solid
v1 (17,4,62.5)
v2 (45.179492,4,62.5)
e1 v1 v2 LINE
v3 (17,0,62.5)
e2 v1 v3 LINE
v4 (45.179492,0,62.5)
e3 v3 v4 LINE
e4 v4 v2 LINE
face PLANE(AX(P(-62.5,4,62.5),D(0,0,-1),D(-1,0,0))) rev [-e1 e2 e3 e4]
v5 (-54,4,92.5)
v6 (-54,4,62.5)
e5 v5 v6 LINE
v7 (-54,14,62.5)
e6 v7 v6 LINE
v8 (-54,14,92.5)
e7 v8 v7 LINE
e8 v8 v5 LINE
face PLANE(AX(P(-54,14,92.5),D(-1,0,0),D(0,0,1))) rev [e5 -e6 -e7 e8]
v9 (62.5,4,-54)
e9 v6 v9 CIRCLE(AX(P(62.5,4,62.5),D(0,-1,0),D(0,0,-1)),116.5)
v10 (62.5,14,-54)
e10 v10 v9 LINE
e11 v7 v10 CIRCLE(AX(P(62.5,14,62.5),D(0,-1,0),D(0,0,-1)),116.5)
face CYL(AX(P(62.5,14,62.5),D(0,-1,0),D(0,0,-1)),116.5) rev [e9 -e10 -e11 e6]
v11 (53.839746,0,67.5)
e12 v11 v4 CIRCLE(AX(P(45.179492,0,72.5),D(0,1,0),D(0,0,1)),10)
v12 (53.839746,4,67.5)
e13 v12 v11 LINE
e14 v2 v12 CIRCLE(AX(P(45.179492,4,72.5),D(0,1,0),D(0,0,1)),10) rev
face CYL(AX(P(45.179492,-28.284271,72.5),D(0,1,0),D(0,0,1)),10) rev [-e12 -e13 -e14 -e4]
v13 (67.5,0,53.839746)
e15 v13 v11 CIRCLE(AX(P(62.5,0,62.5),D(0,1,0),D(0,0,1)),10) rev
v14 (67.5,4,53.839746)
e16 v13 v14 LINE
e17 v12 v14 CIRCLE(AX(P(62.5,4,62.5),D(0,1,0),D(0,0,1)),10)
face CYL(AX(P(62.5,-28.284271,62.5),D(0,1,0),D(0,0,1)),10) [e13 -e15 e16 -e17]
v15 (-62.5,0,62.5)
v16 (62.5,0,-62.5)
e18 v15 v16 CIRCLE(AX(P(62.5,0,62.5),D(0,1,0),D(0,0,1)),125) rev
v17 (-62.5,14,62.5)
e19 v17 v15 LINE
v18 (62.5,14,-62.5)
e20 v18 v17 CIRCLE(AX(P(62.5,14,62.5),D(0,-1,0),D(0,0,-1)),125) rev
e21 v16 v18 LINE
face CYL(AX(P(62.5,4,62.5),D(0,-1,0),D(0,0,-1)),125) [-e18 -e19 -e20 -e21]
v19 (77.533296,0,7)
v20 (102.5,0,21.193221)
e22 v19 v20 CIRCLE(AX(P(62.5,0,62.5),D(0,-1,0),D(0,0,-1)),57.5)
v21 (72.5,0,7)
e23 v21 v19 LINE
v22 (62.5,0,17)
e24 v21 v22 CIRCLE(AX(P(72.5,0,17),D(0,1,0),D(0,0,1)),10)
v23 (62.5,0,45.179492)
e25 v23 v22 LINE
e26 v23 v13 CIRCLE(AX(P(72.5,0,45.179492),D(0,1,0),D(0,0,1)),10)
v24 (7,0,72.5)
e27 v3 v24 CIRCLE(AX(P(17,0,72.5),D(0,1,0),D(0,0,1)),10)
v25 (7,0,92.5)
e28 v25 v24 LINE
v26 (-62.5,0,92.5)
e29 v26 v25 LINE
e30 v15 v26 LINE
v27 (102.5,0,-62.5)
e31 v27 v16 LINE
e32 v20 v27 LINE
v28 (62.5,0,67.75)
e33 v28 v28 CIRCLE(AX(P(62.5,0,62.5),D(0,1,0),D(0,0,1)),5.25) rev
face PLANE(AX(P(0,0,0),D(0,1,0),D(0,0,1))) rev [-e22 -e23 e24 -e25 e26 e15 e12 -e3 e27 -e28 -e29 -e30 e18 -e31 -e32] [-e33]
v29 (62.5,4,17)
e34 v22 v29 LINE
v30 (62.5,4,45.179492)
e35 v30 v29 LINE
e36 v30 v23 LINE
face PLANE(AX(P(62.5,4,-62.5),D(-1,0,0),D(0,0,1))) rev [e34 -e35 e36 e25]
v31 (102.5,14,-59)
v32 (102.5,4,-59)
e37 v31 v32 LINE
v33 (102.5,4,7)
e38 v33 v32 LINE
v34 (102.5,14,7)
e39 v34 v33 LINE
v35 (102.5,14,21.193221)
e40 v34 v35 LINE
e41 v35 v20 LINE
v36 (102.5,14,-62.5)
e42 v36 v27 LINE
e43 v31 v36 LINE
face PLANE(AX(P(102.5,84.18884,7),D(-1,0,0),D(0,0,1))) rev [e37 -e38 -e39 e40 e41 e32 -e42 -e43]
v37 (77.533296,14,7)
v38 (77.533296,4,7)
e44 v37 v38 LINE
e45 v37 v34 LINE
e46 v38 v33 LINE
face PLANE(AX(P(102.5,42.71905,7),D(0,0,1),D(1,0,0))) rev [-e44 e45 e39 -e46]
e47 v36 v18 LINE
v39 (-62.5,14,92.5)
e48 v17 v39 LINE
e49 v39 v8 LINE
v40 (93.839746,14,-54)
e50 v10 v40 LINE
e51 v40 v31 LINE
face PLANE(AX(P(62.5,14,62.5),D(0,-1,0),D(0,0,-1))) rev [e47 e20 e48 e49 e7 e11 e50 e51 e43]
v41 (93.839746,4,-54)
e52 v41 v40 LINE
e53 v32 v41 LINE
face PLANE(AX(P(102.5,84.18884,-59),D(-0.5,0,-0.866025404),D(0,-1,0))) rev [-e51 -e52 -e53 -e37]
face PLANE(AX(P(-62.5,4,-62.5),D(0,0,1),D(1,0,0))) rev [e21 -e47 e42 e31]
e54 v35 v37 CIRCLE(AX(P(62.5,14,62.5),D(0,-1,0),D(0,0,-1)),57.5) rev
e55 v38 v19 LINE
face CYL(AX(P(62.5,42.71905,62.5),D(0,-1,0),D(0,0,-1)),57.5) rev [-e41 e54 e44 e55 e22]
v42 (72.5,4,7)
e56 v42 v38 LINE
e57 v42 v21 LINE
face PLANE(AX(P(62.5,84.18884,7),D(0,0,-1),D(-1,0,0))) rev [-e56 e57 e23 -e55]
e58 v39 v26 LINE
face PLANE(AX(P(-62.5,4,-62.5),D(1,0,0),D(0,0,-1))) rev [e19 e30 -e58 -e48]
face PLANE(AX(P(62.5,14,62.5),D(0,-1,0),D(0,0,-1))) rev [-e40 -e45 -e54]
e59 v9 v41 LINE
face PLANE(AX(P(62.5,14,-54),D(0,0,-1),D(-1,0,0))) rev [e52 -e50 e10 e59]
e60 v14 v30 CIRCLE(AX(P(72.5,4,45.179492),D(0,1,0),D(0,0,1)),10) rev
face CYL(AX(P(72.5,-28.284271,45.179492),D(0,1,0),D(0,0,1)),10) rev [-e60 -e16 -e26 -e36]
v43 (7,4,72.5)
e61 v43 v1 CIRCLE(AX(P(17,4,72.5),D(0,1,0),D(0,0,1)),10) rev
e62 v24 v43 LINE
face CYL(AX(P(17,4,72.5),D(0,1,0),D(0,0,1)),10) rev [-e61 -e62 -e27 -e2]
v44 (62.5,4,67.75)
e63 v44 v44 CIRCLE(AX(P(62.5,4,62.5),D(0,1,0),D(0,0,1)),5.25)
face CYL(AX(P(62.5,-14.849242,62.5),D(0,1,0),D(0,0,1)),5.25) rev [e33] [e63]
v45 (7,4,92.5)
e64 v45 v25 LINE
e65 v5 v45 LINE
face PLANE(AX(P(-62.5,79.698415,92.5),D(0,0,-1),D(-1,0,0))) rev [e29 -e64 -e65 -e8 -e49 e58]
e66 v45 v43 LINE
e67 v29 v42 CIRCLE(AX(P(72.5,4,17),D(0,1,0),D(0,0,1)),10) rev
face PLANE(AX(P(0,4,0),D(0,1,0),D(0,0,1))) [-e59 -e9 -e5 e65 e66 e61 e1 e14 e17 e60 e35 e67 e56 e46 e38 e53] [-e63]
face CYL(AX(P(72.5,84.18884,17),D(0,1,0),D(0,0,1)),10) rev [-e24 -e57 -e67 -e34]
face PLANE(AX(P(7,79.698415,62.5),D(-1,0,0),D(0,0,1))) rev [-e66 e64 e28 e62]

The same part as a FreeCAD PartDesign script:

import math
import FreeCAD as App
import Part
import Sketcher
from FreeCAD import Vector
Q = App.Units.Quantity


def edges_at(feature, points):
    """Names of the edges that pass closest to the given points."""
    edges = feature.Shape.Edges
    near = lambda p: min(range(len(edges)), key=lambda i: edges[i].distToShape(Part.Vertex(*p))[0])
    return sorted({f"Edge{near(p) + 1}" for p in points})


def add_polygon(sketch, points):
    """Adds a closed chain of lines whose ends are joined by coincident constraints."""
    first, n = sketch.GeometryCount, len(points)
    for a, b in zip(points, points[1:] + points[:1]):
        sketch.addGeometry(Part.LineSegment(App.Vector(*a, 0), App.Vector(*b, 0)), False)
    for i in range(n):
        sketch.addConstraint(Sketcher.Constraint("Coincident", first + i, 2, first + (i + 1) % n, 1))

doc = App.newDocument("Part")
body = doc.addObject("PartDesign::Body", "Body")

sketch1 = body.newObject("Sketcher::SketchObject", "Sketch")
sketch1.AttachmentSupport = (doc.getObject("XZ_Plane"), [""])
sketch1.MapMode = "FlatFace"
add_polygon(sketch1, [(-62, -62), (-62, 62), (62, 62), (62, -62)])
sketch1.addConstraint([
    Sketcher.Constraint("Vertical", 0),
    Sketcher.Constraint("Horizontal", 1),
    Sketcher.Constraint("Vertical", 2),
    Sketcher.Constraint("Horizontal", 3),
    Sketcher.Constraint("Symmetric", 0, 2, 2, 2, -1, 1),
    Sketcher.Constraint("Equal", 3, 0),
    Sketcher.Constraint("DistanceX", 1, 1, 1, 2, Q("125 mm")),
])
pad1 = body.newObject("PartDesign::Pad", "Pad")
pad1.Profile = sketch1
pad1.Length = 4
pad1.Reversed = True

sketch2 = body.newObject("Sketcher::SketchObject", "Sketch001")
sketch2.AttachmentSupport = (doc.getObject("XZ_Plane"), [""])
sketch2.MapMode = "FlatFace"
add_polygon(sketch2, [(62, -62), (62, 7), (102, 7), (102, -62)])
sketch2.addConstraint([
    Sketcher.Constraint("Vertical", 0),
    Sketcher.Constraint("Horizontal", 1),
    Sketcher.Constraint("Vertical", 2),
    Sketcher.Constraint("Horizontal", 3),
    Sketcher.Constraint("DistanceX", 1, 1, 1, 2, Q("40 mm")),
    Sketcher.Constraint("DistanceY", 0, 1, 0, 2, Q("69.5 mm")),
    Sketcher.Constraint("DistanceY", -1, 1, 0, 2, Q("7 mm")),
    Sketcher.Constraint("DistanceX", -1, 1, 0, 2, Q("62.5 mm")),
])
pad2 = body.newObject("PartDesign::Pad", "Pad001")
pad2.Profile = sketch2
pad2.Length = 4
pad2.Reversed = True

sketch3 = body.newObject("Sketcher::SketchObject", "Sketch002")
sketch3.AttachmentSupport = (doc.getObject("XZ_Plane"), [""])
sketch3.MapMode = "FlatFace"
add_polygon(sketch3, [(-62, 62), (-62, 92), (7, 92), (7, 62)])
sketch3.addConstraint([
    Sketcher.Constraint("Vertical", 0),
    Sketcher.Constraint("Horizontal", 1),
    Sketcher.Constraint("Vertical", 2),
    Sketcher.Constraint("Horizontal", 3),
    Sketcher.Constraint("DistanceY", 0, 1, 0, 2, Q("30 mm")),
    Sketcher.Constraint("DistanceX", 1, 1, 1, 2, Q("69.5 mm")),
    Sketcher.Constraint("DistanceX", -1, 1, 1, 2, Q("7 mm")),
    Sketcher.Constraint("DistanceY", -1, 1, 0, 2, Q("92.5 mm")),
])
pad3 = body.newObject("PartDesign::Pad", "Pad002")
pad3.Profile = sketch3
pad3.Length = 4
pad3.Reversed = True

sketch4 = body.newObject("Sketcher::SketchObject", "Sketch003")
sketch4.AttachmentSupport = (doc.getObject("XZ_Plane"), [""])
sketch4.MapMode = "FlatFace"
sketch4.AttachmentOffset = App.Placement(Vector(0, 0, -4), App.Rotation())
sketch4.addGeometry([
    Part.LineSegment(Vector(-62, -62, 0), Vector(-62, 92, 0)),
    Part.LineSegment(Vector(-62, 92, 0), Vector(-54, 92, 0)),
    Part.LineSegment(Vector(-54, 92, 0), Vector(-54, 62, 0)),
    Part.ArcOfCircle(Part.Circle(Vector(63, 63, 0), Vector(0, 0, 1), 117), math.radians(-180), math.radians(-90)),
    Part.LineSegment(Vector(62, -54, 0), Vector(102, -54, 0)),
    Part.LineSegment(Vector(102, -54, 0), Vector(102, -62, 0)),
    Part.LineSegment(Vector(102, -62, 0), Vector(-62, -62, 0)),
], False)
sketch4.addConstraint([
    Sketcher.Constraint("Coincident", 0, 2, 1, 1),
    Sketcher.Constraint("Coincident", 1, 2, 2, 1),
    Sketcher.Constraint("Tangent", 2, 2, 3, 1),
    Sketcher.Constraint("Tangent", 3, 2, 4, 1),
    Sketcher.Constraint("Coincident", 4, 2, 5, 1),
    Sketcher.Constraint("Coincident", 5, 2, 6, 1),
    Sketcher.Constraint("Coincident", 6, 2, 0, 1),
    Sketcher.Constraint("Vertical", 0),
    Sketcher.Constraint("Horizontal", 1),
    Sketcher.Constraint("Vertical", 2),
    Sketcher.Constraint("Horizontal", 4),
    Sketcher.Constraint("Vertical", 5),
    Sketcher.Constraint("Horizontal", 6),
    Sketcher.Constraint("Equal", 1, 5),
    Sketcher.Constraint("Radius", 3, Q("116.5 mm")),
    Sketcher.Constraint("DistanceX", 4, 1, 4, 2, Q("40 mm")),
    Sketcher.Constraint("DistanceX", 6, 2, 6, 1, Q("165 mm")),
    Sketcher.Constraint("DistanceY", 0, 1, 0, 2, Q("155 mm")),
    Sketcher.Constraint("DistanceX", 1, 2, -1, 1, Q("54 mm")),
    Sketcher.Constraint("DistanceY", 3, 2, -1, 1, Q("54 mm")),
])
pad4 = body.newObject("PartDesign::Pad", "Pad003")
pad4.Profile = sketch4
pad4.Length = 10
pad4.Reversed = True

sketch5 = body.newObject("Sketcher::SketchObject", "Sketch004")
sketch5.AttachmentSupport = (doc.getObject("XZ_Plane"), [""])
sketch5.MapMode = "FlatFace"
sketch5.AttachmentOffset = App.Placement(Vector(0, 0, -4), App.Rotation())
sketch5.addGeometry(Part.Circle(Vector(62, 62, 0), Vector(0, 0, 1), 10), False)
sketch5.addConstraint([
    Sketcher.Constraint("Diameter", 0, Q("20 mm")),
    Sketcher.Constraint("DistanceX", -1, 1, 0, 3, Q("62.5 mm")),
    Sketcher.Constraint("DistanceY", -1, 1, 0, 3, Q("62.5 mm")),
])
pad5 = body.newObject("PartDesign::Pad", "Pad004")
pad5.Profile = sketch5
pad5.Length = 4

sketch6 = body.newObject("Sketcher::SketchObject", "Sketch005")
sketch6.AttachmentSupport = (doc.getObject("XZ_Plane"), [""])
sketch6.MapMode = "FlatFace"
sketch6.AttachmentOffset = App.Placement(Vector(0, 0, -4), App.Rotation())
sketch6.addGeometry(Part.Circle(Vector(62, 62, 0), Vector(0, 0, 1), 5), False)
sketch6.addConstraint([
    Sketcher.Constraint("Diameter", 0, Q("10.5 mm")),
    Sketcher.Constraint("DistanceX", -1, 1, 0, 3, Q("62.5 mm")),
    Sketcher.Constraint("DistanceY", -1, 1, 0, 3, Q("62.5 mm")),
])
pocket1 = body.newObject("PartDesign::Pocket", "Pocket")
pocket1.Profile = sketch6
pocket1.Length = 4
pocket1.Reversed = True
doc.recompute()

fillet = body.newObject("PartDesign::Fillet", "Fillet")
fillet.Base = (pocket1, edges_at(pocket1, [(-62.5, 7, -62.5)]))
fillet.Radius = 125
doc.recompute()

chamfer = body.newObject("PartDesign::Chamfer", "Chamfer")
chamfer.Base = (fillet, edges_at(fillet, [(102.5, 9, -54)]))
chamfer.ChamferType = "Two distances"
chamfer.Size = 5
chamfer.Size2 = 8.660254

sketch7 = body.newObject("Sketcher::SketchObject", "Sketch006")
sketch7.AttachmentSupport = (doc.getObject("XZ_Plane"), [""])
sketch7.MapMode = "FlatFace"
sketch7.addGeometry([
    Part.LineSegment(Vector(102, 21, 0), Vector(102, 7, 0)),
    Part.LineSegment(Vector(102, 7, 0), Vector(78, 7, 0)),
    Part.ArcOfCircle(Part.Circle(Vector(63, 62, 0), Vector(0, 0, 1), 57), math.radians(-75), math.radians(-46)),
], False)
sketch7.addConstraint([
    Sketcher.Constraint("Coincident", 0, 2, 1, 1),
    Sketcher.Constraint("Coincident", 1, 2, 2, 1),
    Sketcher.Constraint("Coincident", 2, 2, 0, 1),
    Sketcher.Constraint("Vertical", 0),
    Sketcher.Constraint("Horizontal", 1),
    Sketcher.Constraint("Radius", 2, Q("57.5 mm")),
    Sketcher.Constraint("DistanceY", -1, 1, 0, 2, Q("7 mm")),
    Sketcher.Constraint("DistanceX", 2, 3, 0, 2, Q("40 mm")),
    Sketcher.Constraint("DistanceX", -1, 1, 2, 3, Q("62.5 mm")),
    Sketcher.Constraint("DistanceY", -1, 1, 2, 3, Q("62.5 mm")),
])
pad6 = body.newObject("PartDesign::Pad", "Pad005")
pad6.Profile = sketch7
pad6.Length = 14
pad6.Reversed = True
doc.recompute()

fillet2 = body.newObject("PartDesign::Fillet", "Fillet001")
fillet2.Base = (pad6, edges_at(pad6, [
    (62.5, 2, 7),
    (7, 2, 62.5),
    (62.5, 2, 52.5),
    (52.5, 2, 62.5),
]))
fillet2.Radius = 10

doc.recompute()
